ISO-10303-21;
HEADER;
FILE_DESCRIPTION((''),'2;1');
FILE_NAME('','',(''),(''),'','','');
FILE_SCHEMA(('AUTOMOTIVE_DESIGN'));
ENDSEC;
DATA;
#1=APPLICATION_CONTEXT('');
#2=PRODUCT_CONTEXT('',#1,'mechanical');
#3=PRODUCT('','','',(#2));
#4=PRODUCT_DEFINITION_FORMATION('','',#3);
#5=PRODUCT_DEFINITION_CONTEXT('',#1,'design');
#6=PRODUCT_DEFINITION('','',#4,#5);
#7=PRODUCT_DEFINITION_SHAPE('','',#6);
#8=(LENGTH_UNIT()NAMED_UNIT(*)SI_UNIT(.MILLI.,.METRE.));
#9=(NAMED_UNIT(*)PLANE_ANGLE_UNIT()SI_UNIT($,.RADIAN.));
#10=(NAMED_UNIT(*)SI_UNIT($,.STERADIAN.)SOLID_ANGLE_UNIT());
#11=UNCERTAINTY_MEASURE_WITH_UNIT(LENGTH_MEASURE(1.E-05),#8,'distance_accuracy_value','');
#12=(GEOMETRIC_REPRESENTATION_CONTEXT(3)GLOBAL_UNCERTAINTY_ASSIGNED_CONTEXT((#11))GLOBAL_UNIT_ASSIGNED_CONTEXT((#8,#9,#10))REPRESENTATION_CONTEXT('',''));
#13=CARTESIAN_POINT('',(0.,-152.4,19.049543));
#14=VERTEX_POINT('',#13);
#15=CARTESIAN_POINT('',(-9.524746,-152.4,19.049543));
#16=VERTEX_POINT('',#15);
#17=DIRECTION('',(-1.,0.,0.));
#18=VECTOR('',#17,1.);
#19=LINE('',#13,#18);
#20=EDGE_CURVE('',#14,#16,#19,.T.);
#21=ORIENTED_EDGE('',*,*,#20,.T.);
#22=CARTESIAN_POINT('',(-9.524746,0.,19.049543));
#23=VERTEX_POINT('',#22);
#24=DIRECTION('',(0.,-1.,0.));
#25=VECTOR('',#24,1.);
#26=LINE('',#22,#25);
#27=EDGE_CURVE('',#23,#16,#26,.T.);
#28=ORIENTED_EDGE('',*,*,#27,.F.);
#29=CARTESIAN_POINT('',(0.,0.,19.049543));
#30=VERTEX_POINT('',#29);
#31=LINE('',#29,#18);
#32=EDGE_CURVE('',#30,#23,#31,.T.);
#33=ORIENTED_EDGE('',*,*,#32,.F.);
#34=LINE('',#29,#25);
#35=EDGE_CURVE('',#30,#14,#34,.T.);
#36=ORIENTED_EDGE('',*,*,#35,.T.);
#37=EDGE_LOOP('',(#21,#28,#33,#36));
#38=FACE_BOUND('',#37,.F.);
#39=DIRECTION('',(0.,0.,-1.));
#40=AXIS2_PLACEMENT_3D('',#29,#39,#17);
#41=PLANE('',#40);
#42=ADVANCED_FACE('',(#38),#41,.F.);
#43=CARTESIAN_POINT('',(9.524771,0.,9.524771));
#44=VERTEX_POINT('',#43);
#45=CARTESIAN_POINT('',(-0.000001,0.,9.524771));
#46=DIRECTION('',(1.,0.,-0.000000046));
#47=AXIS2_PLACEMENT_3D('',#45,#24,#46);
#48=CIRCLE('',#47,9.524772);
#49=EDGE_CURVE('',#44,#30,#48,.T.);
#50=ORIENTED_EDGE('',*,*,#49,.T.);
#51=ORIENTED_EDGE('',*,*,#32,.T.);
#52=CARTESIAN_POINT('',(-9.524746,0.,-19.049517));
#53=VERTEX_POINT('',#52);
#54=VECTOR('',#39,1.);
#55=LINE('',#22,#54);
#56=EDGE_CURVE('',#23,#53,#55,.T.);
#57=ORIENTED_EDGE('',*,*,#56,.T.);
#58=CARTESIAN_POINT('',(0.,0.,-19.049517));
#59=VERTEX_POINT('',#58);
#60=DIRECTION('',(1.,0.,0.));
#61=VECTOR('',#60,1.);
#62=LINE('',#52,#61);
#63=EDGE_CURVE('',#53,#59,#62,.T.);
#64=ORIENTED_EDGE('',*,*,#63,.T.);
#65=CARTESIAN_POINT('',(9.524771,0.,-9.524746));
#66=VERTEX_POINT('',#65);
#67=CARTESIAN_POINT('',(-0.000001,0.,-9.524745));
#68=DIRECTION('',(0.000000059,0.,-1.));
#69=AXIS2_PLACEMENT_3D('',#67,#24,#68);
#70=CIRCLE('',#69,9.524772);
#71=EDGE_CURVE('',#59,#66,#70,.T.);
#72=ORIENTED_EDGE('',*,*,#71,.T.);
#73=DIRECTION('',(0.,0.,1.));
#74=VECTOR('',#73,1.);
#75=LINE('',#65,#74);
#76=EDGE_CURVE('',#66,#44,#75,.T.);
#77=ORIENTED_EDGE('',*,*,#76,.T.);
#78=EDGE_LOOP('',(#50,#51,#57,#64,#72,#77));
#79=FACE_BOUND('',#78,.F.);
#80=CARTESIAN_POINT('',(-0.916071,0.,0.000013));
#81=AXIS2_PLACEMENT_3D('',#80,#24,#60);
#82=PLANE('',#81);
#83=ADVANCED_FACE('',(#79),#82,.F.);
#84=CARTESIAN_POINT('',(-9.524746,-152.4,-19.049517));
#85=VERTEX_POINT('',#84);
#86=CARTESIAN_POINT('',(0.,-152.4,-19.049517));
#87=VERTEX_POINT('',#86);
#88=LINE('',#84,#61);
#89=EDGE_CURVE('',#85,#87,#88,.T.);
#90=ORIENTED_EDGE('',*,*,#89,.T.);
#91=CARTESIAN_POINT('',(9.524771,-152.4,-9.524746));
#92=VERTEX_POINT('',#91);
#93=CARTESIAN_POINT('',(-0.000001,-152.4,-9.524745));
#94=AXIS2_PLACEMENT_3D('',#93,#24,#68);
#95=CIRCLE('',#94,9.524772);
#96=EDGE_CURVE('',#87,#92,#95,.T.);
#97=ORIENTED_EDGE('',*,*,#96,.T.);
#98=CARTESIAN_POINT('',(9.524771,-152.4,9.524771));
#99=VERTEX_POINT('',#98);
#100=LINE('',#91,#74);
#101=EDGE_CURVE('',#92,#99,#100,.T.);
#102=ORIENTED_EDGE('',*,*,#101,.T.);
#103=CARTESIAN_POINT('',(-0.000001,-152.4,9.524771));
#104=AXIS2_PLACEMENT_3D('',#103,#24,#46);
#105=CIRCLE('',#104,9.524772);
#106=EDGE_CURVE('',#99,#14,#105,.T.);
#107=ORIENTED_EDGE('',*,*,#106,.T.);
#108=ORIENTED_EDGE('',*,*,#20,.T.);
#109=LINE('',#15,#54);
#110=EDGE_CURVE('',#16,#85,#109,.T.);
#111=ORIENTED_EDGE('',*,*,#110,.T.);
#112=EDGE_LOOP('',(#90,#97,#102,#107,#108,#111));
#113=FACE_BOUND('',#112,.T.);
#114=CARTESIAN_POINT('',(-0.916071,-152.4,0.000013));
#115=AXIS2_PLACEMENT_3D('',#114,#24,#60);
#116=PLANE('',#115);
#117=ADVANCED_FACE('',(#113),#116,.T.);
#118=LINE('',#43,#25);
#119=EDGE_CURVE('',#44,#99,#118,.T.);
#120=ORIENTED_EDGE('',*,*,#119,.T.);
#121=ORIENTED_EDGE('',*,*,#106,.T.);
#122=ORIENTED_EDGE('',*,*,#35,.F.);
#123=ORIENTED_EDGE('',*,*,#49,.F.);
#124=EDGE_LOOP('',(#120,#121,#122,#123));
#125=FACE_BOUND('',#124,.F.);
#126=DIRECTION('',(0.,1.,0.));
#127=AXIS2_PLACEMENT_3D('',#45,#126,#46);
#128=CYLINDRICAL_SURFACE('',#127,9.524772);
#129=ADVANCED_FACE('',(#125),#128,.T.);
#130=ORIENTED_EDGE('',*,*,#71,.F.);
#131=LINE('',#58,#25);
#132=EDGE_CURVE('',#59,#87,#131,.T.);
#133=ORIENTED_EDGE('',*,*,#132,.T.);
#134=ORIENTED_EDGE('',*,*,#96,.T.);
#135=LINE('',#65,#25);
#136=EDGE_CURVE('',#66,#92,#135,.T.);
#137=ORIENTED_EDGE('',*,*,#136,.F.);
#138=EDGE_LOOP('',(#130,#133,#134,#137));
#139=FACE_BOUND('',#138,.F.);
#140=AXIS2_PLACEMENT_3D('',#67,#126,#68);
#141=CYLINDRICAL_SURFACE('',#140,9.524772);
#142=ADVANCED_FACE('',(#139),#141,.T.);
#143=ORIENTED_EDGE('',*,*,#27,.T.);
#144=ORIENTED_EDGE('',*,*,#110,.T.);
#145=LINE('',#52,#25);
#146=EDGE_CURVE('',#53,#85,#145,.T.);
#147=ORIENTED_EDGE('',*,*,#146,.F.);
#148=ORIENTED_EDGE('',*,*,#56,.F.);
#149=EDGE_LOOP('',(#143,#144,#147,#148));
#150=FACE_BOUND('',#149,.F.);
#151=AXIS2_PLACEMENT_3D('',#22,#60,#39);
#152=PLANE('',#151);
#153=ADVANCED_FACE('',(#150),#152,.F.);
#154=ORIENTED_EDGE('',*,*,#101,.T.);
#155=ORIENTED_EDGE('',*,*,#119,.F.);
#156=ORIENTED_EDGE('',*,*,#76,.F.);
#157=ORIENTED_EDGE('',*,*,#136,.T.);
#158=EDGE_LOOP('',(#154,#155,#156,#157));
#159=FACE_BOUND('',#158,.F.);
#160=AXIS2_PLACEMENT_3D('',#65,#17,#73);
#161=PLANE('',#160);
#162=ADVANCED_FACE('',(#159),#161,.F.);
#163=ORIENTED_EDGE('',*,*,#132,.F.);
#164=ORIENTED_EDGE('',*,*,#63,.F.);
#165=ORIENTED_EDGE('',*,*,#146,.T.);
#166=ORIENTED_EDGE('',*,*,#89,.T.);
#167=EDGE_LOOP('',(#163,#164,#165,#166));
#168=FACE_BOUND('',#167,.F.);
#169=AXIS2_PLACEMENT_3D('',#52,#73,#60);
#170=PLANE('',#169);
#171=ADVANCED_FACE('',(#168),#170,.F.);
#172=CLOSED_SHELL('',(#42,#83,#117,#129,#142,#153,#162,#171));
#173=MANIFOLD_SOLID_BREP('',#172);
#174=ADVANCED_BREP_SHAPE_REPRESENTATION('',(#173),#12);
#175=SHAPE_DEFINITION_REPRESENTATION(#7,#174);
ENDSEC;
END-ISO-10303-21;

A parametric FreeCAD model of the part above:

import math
import FreeCAD as App
import Part
import Sketcher

V = App.Vector
Q = App.Units.Quantity

doc = App.newDocument("Part")
body = doc.addObject("PartDesign::Body", "Body")

sketch1 = doc.addObject("Sketcher::SketchObject", "Sketch")
body.addObject(sketch1)
sketch1.AttachmentSupport = (doc.XZ_Plane, [""])
sketch1.MapMode = "FlatFace"
sketch1.addGeometry([
    Part.LineSegment(V(-10, 19, 0), V(-10, -19, 0)),
    Part.LineSegment(V(-10, -19, 0), V(0, -19, 0)),
    Part.ArcOfCircle(Part.Circle(V(0, -10, 0), V(0, 0, 1), 10), math.radians(-90), math.radians(0)),
    Part.LineSegment(V(10, -10, 0), V(10, 10, 0)),
    Part.ArcOfCircle(Part.Circle(V(0, 10, 0), V(0, 0, 1), 10), math.radians(0), math.radians(90)),
    Part.LineSegment(V(0, 19, 0), V(-10, 19, 0)),
], False)
sketch1.addConstraint([
    Sketcher.Constraint("Coincident", 0, 2, 1, 1),
    Sketcher.Constraint("Tangent", 1, 2, 2, 1),
    Sketcher.Constraint("Tangent", 2, 2, 3, 1),
    Sketcher.Constraint("Tangent", 3, 2, 4, 1),
    Sketcher.Constraint("Tangent", 4, 2, 5, 1),
    Sketcher.Constraint("Coincident", 5, 2, 0, 1),
    Sketcher.Constraint("Vertical", 0),
    Sketcher.Constraint("Horizontal", 1),
    Sketcher.Constraint("Vertical", 3),
    Sketcher.Constraint("Horizontal", 5),
    Sketcher.Constraint("Equal", 2, 4),
    Sketcher.Constraint("PointOnObject", 2, 3, -2),
    Sketcher.Constraint("Radius", 2, 9.524772),
    Sketcher.Constraint("DistanceY", 0, 2, 0, 1, 38.09906),
    Sketcher.Constraint("DistanceX", 1, 1, 1, 2, 9.524746),
    Sketcher.Constraint("DistanceY", -1, 1, 4, 3, 9.524771),
])
pad1 = doc.addObject("PartDesign::Pad", "Pad")
body.addObject(pad1)
pad1.Profile = sketch1
pad1.Length = Q("6 in")

doc.recompute()
